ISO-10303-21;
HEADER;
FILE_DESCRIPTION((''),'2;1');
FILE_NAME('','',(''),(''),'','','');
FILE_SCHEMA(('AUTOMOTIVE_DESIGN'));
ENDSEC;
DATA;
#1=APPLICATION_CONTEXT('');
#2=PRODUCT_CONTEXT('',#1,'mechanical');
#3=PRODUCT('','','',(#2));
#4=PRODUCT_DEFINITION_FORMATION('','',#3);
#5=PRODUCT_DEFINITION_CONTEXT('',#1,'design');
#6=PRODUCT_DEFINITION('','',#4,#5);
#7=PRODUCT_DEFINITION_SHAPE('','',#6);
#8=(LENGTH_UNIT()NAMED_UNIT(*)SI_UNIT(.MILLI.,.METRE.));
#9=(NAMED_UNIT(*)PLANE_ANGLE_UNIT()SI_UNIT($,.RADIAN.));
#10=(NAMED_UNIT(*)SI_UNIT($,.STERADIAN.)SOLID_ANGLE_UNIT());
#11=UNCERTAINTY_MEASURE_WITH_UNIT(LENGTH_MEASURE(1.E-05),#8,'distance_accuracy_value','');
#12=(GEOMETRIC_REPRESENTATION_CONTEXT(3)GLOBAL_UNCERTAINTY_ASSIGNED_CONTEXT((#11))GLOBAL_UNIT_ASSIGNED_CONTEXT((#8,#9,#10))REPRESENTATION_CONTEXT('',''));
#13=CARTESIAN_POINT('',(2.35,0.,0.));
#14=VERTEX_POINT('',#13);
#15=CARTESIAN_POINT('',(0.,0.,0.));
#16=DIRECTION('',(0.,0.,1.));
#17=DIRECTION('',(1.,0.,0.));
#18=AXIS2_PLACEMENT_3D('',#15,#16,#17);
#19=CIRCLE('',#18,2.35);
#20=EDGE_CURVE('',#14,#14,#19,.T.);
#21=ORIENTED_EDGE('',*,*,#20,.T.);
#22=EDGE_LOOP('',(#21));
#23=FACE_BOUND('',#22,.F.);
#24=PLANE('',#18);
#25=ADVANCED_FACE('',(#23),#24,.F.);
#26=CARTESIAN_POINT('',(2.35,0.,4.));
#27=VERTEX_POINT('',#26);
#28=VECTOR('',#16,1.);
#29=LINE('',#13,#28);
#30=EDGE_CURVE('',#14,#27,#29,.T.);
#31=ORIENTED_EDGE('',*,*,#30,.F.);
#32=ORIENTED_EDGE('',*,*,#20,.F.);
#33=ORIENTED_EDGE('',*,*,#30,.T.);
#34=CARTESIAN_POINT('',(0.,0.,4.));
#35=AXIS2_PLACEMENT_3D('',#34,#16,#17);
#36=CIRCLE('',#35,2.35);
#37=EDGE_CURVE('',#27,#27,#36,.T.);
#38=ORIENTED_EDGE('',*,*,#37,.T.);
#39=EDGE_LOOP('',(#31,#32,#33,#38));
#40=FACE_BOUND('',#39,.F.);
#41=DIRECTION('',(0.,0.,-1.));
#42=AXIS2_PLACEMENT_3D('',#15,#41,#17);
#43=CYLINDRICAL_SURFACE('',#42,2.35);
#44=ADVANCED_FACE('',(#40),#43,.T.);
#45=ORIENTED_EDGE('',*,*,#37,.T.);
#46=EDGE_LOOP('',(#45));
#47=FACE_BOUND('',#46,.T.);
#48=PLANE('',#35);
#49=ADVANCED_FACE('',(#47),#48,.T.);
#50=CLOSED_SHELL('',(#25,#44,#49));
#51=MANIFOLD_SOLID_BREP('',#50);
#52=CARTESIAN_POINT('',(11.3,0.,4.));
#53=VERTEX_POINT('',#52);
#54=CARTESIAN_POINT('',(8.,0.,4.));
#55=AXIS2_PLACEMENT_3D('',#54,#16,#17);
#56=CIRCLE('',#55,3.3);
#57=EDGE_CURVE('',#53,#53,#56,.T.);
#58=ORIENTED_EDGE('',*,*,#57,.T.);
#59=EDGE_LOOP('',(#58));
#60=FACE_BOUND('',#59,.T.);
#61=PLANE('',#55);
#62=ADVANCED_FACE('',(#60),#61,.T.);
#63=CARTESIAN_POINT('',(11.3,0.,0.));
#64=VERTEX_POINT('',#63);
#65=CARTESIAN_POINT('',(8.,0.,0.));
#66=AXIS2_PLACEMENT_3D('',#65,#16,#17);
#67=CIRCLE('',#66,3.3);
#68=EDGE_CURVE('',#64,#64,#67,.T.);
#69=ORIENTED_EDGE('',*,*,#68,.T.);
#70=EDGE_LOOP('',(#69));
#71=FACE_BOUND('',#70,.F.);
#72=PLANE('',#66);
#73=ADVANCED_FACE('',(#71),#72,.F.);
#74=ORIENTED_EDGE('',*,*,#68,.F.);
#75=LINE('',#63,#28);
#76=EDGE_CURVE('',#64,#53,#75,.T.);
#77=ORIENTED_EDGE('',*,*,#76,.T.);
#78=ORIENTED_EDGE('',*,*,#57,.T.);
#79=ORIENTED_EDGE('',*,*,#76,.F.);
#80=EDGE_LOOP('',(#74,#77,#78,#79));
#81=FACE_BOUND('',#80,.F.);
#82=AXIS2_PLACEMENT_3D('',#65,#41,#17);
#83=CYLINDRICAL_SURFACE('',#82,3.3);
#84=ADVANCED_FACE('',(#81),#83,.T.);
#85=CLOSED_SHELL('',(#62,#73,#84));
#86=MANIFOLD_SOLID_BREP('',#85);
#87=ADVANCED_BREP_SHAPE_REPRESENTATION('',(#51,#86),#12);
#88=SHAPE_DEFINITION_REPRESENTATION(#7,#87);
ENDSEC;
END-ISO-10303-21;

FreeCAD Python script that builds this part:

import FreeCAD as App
import Part
import Sketcher
from FreeCAD import Vector

doc = App.newDocument("Part")
params = doc.addObject("Spreadsheet::Sheet", "Params")
for row, (alias, value) in enumerate([
    ("sketch1_diameter", "4.7 mm"),
    ("pad1_length", "4 mm"),
    ("sketch2_diameter", "6.6 mm"),
    ("pad2_length", "4 mm"),
], start=1):
    params.set(f"A{row}", alias)
    params.set(f"B{row}", "=" + value)
    params.setAlias(f"B{row}", alias)

body = doc.addObject("PartDesign::Body", "Body")

# Sketch on XY plane
sketch1 = body.newObject("Sketcher::SketchObject", "Sketch")
sketch1.AttachmentSupport = (doc.getObject("XY_Plane"), [""])
sketch1.MapMode = "FlatFace"
sketch1.addGeometry(Part.Circle(Vector(0, 0, 0), Vector(0, 0, 1), 2.35), False)
sketch1.addConstraint([
    Sketcher.Constraint("Coincident", 0, 3, -1, 1),
    Sketcher.Constraint("Diameter", 0, 4.7),
])
sketch1.setExpression("Constraints[1]", "Params.sketch1_diameter")
pad1 = body.newObject("PartDesign::Pad", "Pad")
pad1.Profile = sketch1
pad1.setExpression("Length", "Params.pad1_length")
body2 = doc.addObject("PartDesign::Body", "Body001")

# Sketch on XY plane
sketch2 = body2.newObject("Sketcher::SketchObject", "Sketch001")
sketch2.AttachmentSupport = (doc.getObject("XY_Plane001"), [""])
sketch2.MapMode = "FlatFace"
sketch2.addGeometry(Part.Circle(Vector(8, 0, 0), Vector(0, 0, 1), 3.3), False)
sketch2.addConstraint([
    Sketcher.Constraint("PointOnObject", 0, 3, -1),
    Sketcher.Constraint("Diameter", 0, 6.6),
    Sketcher.Constraint("DistanceX", -1, 1, 0, 3, 8.0),
])
sketch2.setExpression("Constraints[1]", "Params.sketch2_diameter")
pad2 = body2.newObject("PartDesign::Pad", "Pad001")
pad2.Profile = sketch2
pad2.setExpression("Length", "Params.pad2_length")

doc.recompute()
